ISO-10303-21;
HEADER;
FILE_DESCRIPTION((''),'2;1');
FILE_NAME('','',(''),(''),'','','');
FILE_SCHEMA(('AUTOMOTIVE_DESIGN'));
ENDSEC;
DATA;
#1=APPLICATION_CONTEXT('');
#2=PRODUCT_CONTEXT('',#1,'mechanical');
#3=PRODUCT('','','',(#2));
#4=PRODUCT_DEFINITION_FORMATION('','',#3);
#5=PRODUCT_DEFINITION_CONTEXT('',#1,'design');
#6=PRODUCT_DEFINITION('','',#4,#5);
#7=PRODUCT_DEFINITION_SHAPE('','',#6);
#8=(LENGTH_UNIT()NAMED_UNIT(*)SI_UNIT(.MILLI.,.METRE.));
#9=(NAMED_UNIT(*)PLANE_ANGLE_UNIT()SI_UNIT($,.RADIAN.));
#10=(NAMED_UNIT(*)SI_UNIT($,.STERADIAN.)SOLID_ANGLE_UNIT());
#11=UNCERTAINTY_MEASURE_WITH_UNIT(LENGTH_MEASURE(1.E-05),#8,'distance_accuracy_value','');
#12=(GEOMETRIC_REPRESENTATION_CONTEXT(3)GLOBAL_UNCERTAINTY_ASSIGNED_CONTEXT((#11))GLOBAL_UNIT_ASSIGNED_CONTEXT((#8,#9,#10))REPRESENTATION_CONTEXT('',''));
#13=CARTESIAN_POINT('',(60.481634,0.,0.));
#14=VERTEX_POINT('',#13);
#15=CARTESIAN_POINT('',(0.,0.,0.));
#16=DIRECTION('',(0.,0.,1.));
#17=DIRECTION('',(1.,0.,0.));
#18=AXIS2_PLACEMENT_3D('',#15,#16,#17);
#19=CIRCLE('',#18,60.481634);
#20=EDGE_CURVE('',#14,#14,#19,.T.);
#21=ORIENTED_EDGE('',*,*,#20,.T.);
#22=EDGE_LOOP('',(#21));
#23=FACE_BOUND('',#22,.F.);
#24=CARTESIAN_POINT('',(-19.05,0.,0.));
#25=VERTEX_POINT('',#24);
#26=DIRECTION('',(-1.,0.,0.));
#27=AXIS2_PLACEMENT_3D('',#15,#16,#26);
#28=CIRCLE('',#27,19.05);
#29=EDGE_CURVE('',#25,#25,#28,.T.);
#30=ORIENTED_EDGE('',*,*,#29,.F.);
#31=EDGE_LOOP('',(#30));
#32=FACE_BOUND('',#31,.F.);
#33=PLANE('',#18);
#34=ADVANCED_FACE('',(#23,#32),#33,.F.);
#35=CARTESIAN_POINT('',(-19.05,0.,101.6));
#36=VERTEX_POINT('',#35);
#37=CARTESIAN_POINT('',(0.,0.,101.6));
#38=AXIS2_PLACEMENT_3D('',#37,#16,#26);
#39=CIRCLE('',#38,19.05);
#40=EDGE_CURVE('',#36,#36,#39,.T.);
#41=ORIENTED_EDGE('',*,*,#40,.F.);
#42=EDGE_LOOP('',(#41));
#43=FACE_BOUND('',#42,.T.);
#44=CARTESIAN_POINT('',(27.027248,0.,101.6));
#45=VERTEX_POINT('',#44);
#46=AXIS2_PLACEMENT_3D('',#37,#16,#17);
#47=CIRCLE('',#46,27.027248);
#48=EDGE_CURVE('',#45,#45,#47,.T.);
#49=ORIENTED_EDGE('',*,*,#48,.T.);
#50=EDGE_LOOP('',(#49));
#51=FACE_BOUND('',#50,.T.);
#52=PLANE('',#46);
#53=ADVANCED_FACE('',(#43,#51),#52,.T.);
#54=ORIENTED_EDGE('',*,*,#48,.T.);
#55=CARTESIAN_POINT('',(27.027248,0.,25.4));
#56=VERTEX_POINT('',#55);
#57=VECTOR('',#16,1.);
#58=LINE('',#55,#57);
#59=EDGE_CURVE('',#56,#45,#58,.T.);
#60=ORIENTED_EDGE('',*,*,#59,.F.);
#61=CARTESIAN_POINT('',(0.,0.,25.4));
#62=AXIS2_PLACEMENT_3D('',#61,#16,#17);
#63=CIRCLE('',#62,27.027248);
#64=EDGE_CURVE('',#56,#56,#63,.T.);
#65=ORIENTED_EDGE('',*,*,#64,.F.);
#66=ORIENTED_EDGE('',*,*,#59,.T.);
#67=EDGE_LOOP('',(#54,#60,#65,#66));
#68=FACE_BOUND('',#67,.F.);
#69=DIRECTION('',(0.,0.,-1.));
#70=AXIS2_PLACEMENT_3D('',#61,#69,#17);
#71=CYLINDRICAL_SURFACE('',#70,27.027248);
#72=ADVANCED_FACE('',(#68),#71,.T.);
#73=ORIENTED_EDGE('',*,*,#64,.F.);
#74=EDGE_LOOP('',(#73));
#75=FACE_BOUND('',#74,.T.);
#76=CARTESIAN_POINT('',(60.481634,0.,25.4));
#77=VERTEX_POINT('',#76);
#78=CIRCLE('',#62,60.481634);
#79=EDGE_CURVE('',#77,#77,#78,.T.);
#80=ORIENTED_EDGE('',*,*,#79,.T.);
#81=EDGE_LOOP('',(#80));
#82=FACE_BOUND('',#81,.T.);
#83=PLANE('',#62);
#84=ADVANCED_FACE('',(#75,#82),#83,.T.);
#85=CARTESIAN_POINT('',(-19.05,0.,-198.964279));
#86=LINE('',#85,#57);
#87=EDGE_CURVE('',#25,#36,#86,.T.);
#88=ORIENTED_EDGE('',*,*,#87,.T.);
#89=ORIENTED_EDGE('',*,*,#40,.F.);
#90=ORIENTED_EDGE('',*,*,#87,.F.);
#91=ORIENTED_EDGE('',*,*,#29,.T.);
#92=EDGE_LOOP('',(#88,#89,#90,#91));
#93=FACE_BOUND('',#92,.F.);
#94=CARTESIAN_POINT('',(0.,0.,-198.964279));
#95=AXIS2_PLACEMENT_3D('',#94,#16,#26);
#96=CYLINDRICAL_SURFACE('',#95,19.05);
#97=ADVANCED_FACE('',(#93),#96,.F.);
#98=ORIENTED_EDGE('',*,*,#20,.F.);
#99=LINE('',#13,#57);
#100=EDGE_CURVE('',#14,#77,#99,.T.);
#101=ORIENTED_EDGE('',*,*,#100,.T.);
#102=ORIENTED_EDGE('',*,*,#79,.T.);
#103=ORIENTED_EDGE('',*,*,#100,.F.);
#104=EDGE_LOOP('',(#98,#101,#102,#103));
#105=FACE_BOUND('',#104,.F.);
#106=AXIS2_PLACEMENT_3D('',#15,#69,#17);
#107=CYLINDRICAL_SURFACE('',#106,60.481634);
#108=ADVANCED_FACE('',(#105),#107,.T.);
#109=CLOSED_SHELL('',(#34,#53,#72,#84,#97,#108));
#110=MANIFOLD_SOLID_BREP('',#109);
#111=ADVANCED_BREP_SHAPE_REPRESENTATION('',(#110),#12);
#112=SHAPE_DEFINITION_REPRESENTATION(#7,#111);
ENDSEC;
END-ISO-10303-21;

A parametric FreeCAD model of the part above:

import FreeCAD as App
import Part
import Sketcher

V = App.Vector
Q = App.Units.Quantity

doc = App.newDocument("Part")
body = doc.addObject("PartDesign::Body", "Body")

# Sketch on XY plane
sketch1 = body.newObject("Sketcher::SketchObject", "Sketch")
sketch1.AttachmentSupport = (doc.getObject("XY_Plane"), [""])
sketch1.MapMode = "FlatFace"
sketch1.addGeometry(Part.Circle(V(0, 0, 0), V(0, 0, 1), 60), False)
sketch1.addConstraint(Sketcher.Constraint("Coincident", 0, 3, -1, 1))
sketch1.addConstraint(Sketcher.Constraint("Diameter", 0, Q("120.963268 mm")))
pad1 = body.newObject("PartDesign::Pad", "Pad")
pad1.Profile = sketch1
pad1.Length = Q("1 in")

# Sketch on XY plane
sketch2 = body.newObject("Sketcher::SketchObject", "Sketch001")
sketch2.AttachmentSupport = (doc.getObject("XY_Plane"), [""])
sketch2.MapMode = "FlatFace"
sketch2.AttachmentOffset = App.Placement(V(0, 0, 1 * 25.4), App.Rotation())
sketch2.addGeometry(Part.Circle(V(0, 0, 0), V(0, 0, 1), 27), False)
sketch2.addConstraint(Sketcher.Constraint("Coincident", 0, 3, -1, 1))
sketch2.addConstraint(Sketcher.Constraint("Diameter", 0, Q("54.054496 mm")))
pad2 = body.newObject("PartDesign::Pad", "Pad001")
pad2.Profile = sketch2
pad2.Length = Q("3 in")

# Sketch on XY plane
sketch3 = body.newObject("Sketcher::SketchObject", "Sketch002")
sketch3.AttachmentSupport = (doc.getObject("XY_Plane"), [""])
sketch3.MapMode = "FlatFace"
sketch3.addGeometry(Part.Circle(V(0, 0, 0), V(0, 0, 1), 19), False)
sketch3.addConstraint(Sketcher.Constraint("Coincident", 0, 3, -1, 1))
sketch3.addConstraint(Sketcher.Constraint("Diameter", 0, Q("1.5 in")))
doc.recompute()
hole = body.newObject("PartDesign::Hole", "Hole")
hole.Profile = sketch3
hole.ThreadType = "None"
hole.Diameter = Q("1.5 in")
hole.DepthType = "ThroughAll"
hole.Reversed = True

doc.recompute()
